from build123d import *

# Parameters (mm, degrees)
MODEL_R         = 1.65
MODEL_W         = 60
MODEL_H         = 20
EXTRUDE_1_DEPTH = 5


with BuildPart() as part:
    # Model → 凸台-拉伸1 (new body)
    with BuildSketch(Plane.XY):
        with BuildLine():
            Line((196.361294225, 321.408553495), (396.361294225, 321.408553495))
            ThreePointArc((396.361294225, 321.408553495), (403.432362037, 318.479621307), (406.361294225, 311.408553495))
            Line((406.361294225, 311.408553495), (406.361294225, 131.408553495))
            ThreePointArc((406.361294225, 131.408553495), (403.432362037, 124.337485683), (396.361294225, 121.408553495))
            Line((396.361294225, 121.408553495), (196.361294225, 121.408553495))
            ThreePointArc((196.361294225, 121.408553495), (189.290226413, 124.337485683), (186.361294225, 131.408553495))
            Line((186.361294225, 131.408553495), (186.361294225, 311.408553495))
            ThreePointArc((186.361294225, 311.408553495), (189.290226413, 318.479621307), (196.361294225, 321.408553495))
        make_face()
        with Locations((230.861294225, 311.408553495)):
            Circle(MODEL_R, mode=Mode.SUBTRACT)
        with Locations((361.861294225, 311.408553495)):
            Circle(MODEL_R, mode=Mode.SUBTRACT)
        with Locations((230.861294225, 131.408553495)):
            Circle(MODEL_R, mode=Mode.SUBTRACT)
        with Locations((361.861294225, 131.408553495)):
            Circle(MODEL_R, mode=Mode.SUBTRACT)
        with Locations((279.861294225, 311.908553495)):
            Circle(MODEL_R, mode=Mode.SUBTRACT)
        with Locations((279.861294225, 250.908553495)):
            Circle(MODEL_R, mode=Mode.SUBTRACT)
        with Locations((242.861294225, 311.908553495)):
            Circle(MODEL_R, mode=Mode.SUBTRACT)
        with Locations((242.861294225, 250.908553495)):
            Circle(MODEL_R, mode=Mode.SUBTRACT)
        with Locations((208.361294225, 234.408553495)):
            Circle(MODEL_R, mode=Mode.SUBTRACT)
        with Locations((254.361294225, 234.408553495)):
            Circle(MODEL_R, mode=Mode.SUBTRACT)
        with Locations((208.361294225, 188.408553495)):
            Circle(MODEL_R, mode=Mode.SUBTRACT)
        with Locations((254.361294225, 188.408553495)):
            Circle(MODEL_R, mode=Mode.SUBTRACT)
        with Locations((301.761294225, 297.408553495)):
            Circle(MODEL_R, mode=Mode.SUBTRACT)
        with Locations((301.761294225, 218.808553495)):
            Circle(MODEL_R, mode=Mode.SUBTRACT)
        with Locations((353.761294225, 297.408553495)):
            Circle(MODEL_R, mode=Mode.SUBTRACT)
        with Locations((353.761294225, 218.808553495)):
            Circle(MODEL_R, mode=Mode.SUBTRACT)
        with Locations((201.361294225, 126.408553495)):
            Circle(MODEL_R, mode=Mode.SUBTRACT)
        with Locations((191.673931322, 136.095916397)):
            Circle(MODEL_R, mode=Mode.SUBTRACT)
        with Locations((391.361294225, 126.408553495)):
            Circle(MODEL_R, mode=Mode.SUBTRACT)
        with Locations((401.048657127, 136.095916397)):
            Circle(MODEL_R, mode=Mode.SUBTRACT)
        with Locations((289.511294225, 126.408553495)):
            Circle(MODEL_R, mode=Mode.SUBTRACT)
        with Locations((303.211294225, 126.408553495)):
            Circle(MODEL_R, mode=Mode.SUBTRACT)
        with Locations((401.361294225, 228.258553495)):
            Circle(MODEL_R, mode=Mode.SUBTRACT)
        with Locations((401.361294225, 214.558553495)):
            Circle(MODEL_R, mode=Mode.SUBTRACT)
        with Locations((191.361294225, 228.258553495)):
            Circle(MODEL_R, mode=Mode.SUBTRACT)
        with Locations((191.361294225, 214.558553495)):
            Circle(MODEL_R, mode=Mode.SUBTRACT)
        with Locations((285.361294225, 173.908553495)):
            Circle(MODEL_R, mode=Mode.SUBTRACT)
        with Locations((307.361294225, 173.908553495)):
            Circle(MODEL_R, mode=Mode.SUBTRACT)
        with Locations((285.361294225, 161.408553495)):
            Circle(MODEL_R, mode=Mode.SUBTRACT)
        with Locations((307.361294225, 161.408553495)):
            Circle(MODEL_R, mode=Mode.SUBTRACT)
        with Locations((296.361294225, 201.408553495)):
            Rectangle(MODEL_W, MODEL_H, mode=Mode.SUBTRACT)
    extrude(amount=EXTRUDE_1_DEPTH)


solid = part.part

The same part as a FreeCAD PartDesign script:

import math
import FreeCAD as App
import Part
import Sketcher


def add_polygon(sketch, points):
    """Adds a closed chain of lines whose ends are joined by coincident constraints."""
    first, n = sketch.GeometryCount, len(points)
    for a, b in zip(points, points[1:] + points[:1]):
        sketch.addGeometry(Part.LineSegment(App.Vector(*a, 0), App.Vector(*b, 0)), False)
    for i in range(n):
        sketch.addConstraint(Sketcher.Constraint("Coincident", first + i, 2, first + (i + 1) % n, 1))

doc = App.newDocument("Part")
body = doc.addObject("PartDesign::Body", "Body")

# Sketch on XY plane
sketch1 = body.newObject("Sketcher::SketchObject", "Sketch")
sketch1.AttachmentSupport = (doc.getObject("XY_Plane"), [""])
sketch1.MapMode = "FlatFace"
sketch1.addGeometry(Part.LineSegment(App.Vector(396.4, 321.4, 0), App.Vector(196.4, 321.4, 0)), False)  # 0
sketch1.addGeometry(Part.ArcOfCircle(Part.Circle(App.Vector(196.4, 311.4, 0), App.Vector(0, 0, 1), 10), math.radians(90), math.radians(180)), False)  # 1
sketch1.addGeometry(Part.LineSegment(App.Vector(186.4, 311.4, 0), App.Vector(186.4, 131.4, 0)), False)  # 2
sketch1.addGeometry(Part.ArcOfCircle(Part.Circle(App.Vector(196.4, 131.4, 0), App.Vector(0, 0, 1), 10), math.radians(180), math.radians(270)), False)  # 3
sketch1.addGeometry(Part.LineSegment(App.Vector(196.4, 121.4, 0), App.Vector(396.4, 121.4, 0)), False)  # 4
sketch1.addGeometry(Part.ArcOfCircle(Part.Circle(App.Vector(396.4, 131.4, 0), App.Vector(0, 0, 1), 10), math.radians(-90), math.radians(0)), False)  # 5
sketch1.addGeometry(Part.LineSegment(App.Vector(406.4, 131.4, 0), App.Vector(406.4, 311.4, 0)), False)  # 6
sketch1.addGeometry(Part.ArcOfCircle(Part.Circle(App.Vector(396.4, 311.4, 0), App.Vector(0, 0, 1), 10), math.radians(0), math.radians(90)), False)  # 7
sketch1.addGeometry(Part.Circle(App.Vector(391.4, 126.4, 0), App.Vector(0, 0, 1), 1.6), False)  # 8
sketch1.addGeometry(Part.Circle(App.Vector(401, 136.1, 0), App.Vector(0, 0, 1), 1.6), False)  # 9
sketch1.addGeometry(Part.Circle(App.Vector(361.9, 131.4, 0), App.Vector(0, 0, 1), 1.6), False)  # 10
sketch1.addGeometry(Part.Circle(App.Vector(303.2, 126.4, 0), App.Vector(0, 0, 1), 1.6), False)  # 11
sketch1.addGeometry(Part.Circle(App.Vector(307.4, 161.4, 0), App.Vector(0, 0, 1), 1.6), False)  # 12
sketch1.addGeometry(Part.Circle(App.Vector(401.4, 214.6, 0), App.Vector(0, 0, 1), 1.6), False)  # 13
sketch1.addGeometry(Part.Circle(App.Vector(353.8, 218.8, 0), App.Vector(0, 0, 1), 1.6), False)  # 14
sketch1.addGeometry(Part.Circle(App.Vector(307.4, 173.9, 0), App.Vector(0, 0, 1), 1.6), False)  # 15
add_polygon(sketch1, [(266.4, 191.4), (266.4, 211.4), (326.4, 211.4), (326.4, 191.4)])  # lines 16-19
sketch1.addGeometry(Part.Circle(App.Vector(301.8, 218.8, 0), App.Vector(0, 0, 1), 1.6), False)  # 20
sketch1.addGeometry(Part.Circle(App.Vector(289.5, 126.4, 0), App.Vector(0, 0, 1), 1.6), False)  # 21
sketch1.addGeometry(Part.Circle(App.Vector(285.4, 161.4, 0), App.Vector(0, 0, 1), 1.6), False)  # 22
sketch1.addGeometry(Part.Circle(App.Vector(230.9, 131.4, 0), App.Vector(0, 0, 1), 1.6), False)  # 23
sketch1.addGeometry(Part.Circle(App.Vector(201.4, 126.4, 0), App.Vector(0, 0, 1), 1.6), False)  # 24
sketch1.addGeometry(Part.Circle(App.Vector(191.7, 136.1, 0), App.Vector(0, 0, 1), 1.6), False)  # 25
sketch1.addGeometry(Part.Circle(App.Vector(285.4, 173.9, 0), App.Vector(0, 0, 1), 1.6), False)  # 26
sketch1.addGeometry(Part.Circle(App.Vector(254.4, 188.4, 0), App.Vector(0, 0, 1), 1.6), False)  # 27
sketch1.addGeometry(Part.Circle(App.Vector(208.4, 188.4, 0), App.Vector(0, 0, 1), 1.6), False)  # 28
sketch1.addGeometry(Part.Circle(App.Vector(191.4, 214.6, 0), App.Vector(0, 0, 1), 1.6), False)  # 29
sketch1.addGeometry(Part.Circle(App.Vector(401.4, 228.3, 0), App.Vector(0, 0, 1), 1.6), False)  # 30
sketch1.addGeometry(Part.Circle(App.Vector(353.8, 297.4, 0), App.Vector(0, 0, 1), 1.6), False)  # 31
sketch1.addGeometry(Part.Circle(App.Vector(361.9, 311.4, 0), App.Vector(0, 0, 1), 1.6), False)  # 32
sketch1.addGeometry(Part.Circle(App.Vector(301.8, 297.4, 0), App.Vector(0, 0, 1), 1.6), False)  # 33
sketch1.addGeometry(Part.Circle(App.Vector(254.4, 234.4, 0), App.Vector(0, 0, 1), 1.6), False)  # 34
sketch1.addGeometry(Part.Circle(App.Vector(279.9, 250.9, 0), App.Vector(0, 0, 1), 1.6), False)  # 35
sketch1.addGeometry(Part.Circle(App.Vector(191.4, 228.3, 0), App.Vector(0, 0, 1), 1.6), False)  # 36
sketch1.addGeometry(Part.Circle(App.Vector(208.4, 234.4, 0), App.Vector(0, 0, 1), 1.6), False)  # 37
sketch1.addGeometry(Part.Circle(App.Vector(242.9, 250.9, 0), App.Vector(0, 0, 1), 1.6), False)  # 38
sketch1.addGeometry(Part.Circle(App.Vector(279.9, 311.9, 0), App.Vector(0, 0, 1), 1.6), False)  # 39
sketch1.addGeometry(Part.Circle(App.Vector(242.9, 311.9, 0), App.Vector(0, 0, 1), 1.6), False)  # 40
sketch1.addGeometry(Part.Circle(App.Vector(230.9, 311.4, 0), App.Vector(0, 0, 1), 1.6), False)  # 41
sketch1.addConstraint([
    Sketcher.Constraint("Tangent", 0, 2, 1, 1),
    Sketcher.Constraint("Tangent", 1, 2, 2, 1),
    Sketcher.Constraint("Tangent", 2, 2, 3, 1),
    Sketcher.Constraint("Tangent", 3, 2, 4, 1),
    Sketcher.Constraint("Tangent", 4, 2, 5, 1),
    Sketcher.Constraint("Tangent", 5, 2, 6, 1),
    Sketcher.Constraint("Tangent", 6, 2, 7, 1),
    Sketcher.Constraint("Tangent", 7, 2, 0, 1),
    Sketcher.Constraint("Horizontal", 0),
    Sketcher.Constraint("Vertical", 2),
    Sketcher.Constraint("Horizontal", 4),
    Sketcher.Constraint("Vertical", 6),
    Sketcher.Constraint("Vertical", 16),
    Sketcher.Constraint("Horizontal", 17),
    Sketcher.Constraint("Vertical", 18),
    Sketcher.Constraint("Horizontal", 19),
    Sketcher.Constraint("Equal", 1, 3),
    Sketcher.Constraint("Equal", 3, 5),
    Sketcher.Constraint("Equal", 5, 7),
    Sketcher.Constraint("Equal", 8, 9),
    Sketcher.Constraint("Equal", 9, 10),
    Sketcher.Constraint("Equal", 10, 11),
    Sketcher.Constraint("Equal", 11, 12),
    Sketcher.Constraint("Equal", 12, 13),
    Sketcher.Constraint("Equal", 13, 14),
    Sketcher.Constraint("Equal", 14, 15),
    Sketcher.Constraint("Equal", 15, 20),
    Sketcher.Constraint("Equal", 20, 21),
    Sketcher.Constraint("Equal", 21, 22),
    Sketcher.Constraint("Equal", 22, 23),
    Sketcher.Constraint("Equal", 23, 24),
    Sketcher.Constraint("Equal", 24, 25),
    Sketcher.Constraint("Equal", 25, 26),
    Sketcher.Constraint("Equal", 26, 27),
    Sketcher.Constraint("Equal", 27, 28),
    Sketcher.Constraint("Equal", 28, 29),
    Sketcher.Constraint("Equal", 29, 30),
    Sketcher.Constraint("Equal", 30, 31),
    Sketcher.Constraint("Equal", 31, 32),
    Sketcher.Constraint("Equal", 32, 33),
    Sketcher.Constraint("Equal", 33, 34),
    Sketcher.Constraint("Equal", 34, 35),
    Sketcher.Constraint("Equal", 35, 36),
    Sketcher.Constraint("Equal", 36, 37),
    Sketcher.Constraint("Equal", 37, 38),
    Sketcher.Constraint("Equal", 38, 39),
    Sketcher.Constraint("Equal", 39, 40),
    Sketcher.Constraint("Equal", 40, 41),
    Sketcher.Constraint("Horizontal", 5, 3, 10, 3),
    Sketcher.Constraint("Horizontal", 8, 3, 11, 3),
    Sketcher.Constraint("Horizontal", 14, 3, 20, 3),
    Sketcher.Constraint("Horizontal", 11, 3, 21, 3),
    Sketcher.Constraint("Horizontal", 12, 3, 22, 3),
    Sketcher.Constraint("Horizontal", 10, 3, 23, 3),
    Sketcher.Constraint("Horizontal", 21, 3, 24, 3),
    Sketcher.Constraint("Horizontal", 9, 3, 25, 3),
    Sketcher.Constraint("Horizontal", 15, 3, 26, 3),
    Sketcher.Constraint("Horizontal", 27, 3, 28, 3),
    Sketcher.Constraint("Horizontal", 13, 3, 29, 3),
    Sketcher.Constraint("Horizontal", 7, 3, 32, 3),
    Sketcher.Constraint("Horizontal", 31, 3, 33, 3),
    Sketcher.Constraint("Horizontal", 30, 3, 36, 3),
    Sketcher.Constraint("Horizontal", 34, 3, 37, 3),
    Sketcher.Constraint("Horizontal", 35, 3, 38, 3),
    Sketcher.Constraint("Horizontal", 39, 3, 40, 3),
    Sketcher.Constraint("Horizontal", 32, 3, 41, 3),
    Sketcher.Constraint("Vertical", 12, 3, 15, 3),
    Sketcher.Constraint("Vertical", 22, 3, 26, 3),
    Sketcher.Constraint("Vertical", 13, 3, 30, 3),
    Sketcher.Constraint("Vertical", 14, 3, 31, 3),
    Sketcher.Constraint("Vertical", 10, 3, 32, 3),
    Sketcher.Constraint("Vertical", 20, 3, 33, 3),
    Sketcher.Constraint("Vertical", 27, 3, 34, 3),
    Sketcher.Constraint("Vertical", 29, 3, 36, 3),
    Sketcher.Constraint("Vertical", 28, 3, 37, 3),
    Sketcher.Constraint("Vertical", 35, 3, 39, 3),
    Sketcher.Constraint("Vertical", 38, 3, 40, 3),
    Sketcher.Constraint("Vertical", 23, 3, 41, 3),
    Sketcher.Constraint("Radius", 1, 10.0),
    Sketcher.Constraint("Diameter", 8, 3.3),
    Sketcher.Constraint("DistanceX", 0, 2, 0, 1, 200.0),
    Sketcher.Constraint("DistanceX", 17, 1, 17, 2, 60.0),
    Sketcher.Constraint("DistanceY", 2, 2, 2, 1, 180.0),
    Sketcher.Constraint("DistanceY", 16, 1, 16, 2, 20.0),
    Sketcher.Constraint("DistanceX", 8, 3, 5, 3, 5.0),
    Sketcher.Constraint("DistanceY", 8, 3, 5, 3, 5.0),
    Sketcher.Constraint("DistanceY", 11, 3, 12, 3, 35.0),
    Sketcher.Constraint("DistanceX", 12, 3, 8, 3, 84.0),
    Sketcher.Constraint("DistanceX", 5, 3, 13, 3, 5.0),
    Sketcher.Constraint("DistanceX", 20, 3, 14, 3, 52.0),
    Sketcher.Constraint("DistanceX", 22, 3, 12, 3, 22.0),
    Sketcher.Constraint("DistanceX", 3, 3, 24, 3, 5.0),
    Sketcher.Constraint("DistanceX", 27, 3, 26, 3, 31.0),
    Sketcher.Constraint("DistanceY", 22, 3, 27, 3, 27.0),
    Sketcher.Constraint("DistanceX", 28, 3, 27, 3, 46.0),
    Sketcher.Constraint("DistanceX", 29, 3, 28, 3, 17.0),
    Sketcher.Constraint("DistanceY", 31, 3, 7, 3, 14.0),
    Sketcher.Constraint("DistanceY", 27, 3, 34, 3, 46.0),
    Sketcher.Constraint("DistanceY", 26, 3, 35, 3, 77.0),
    Sketcher.Constraint("DistanceX", 38, 3, 35, 3, 37.0),
    Sketcher.Constraint("DistanceY", 35, 3, 39, 3, 61.0),
    Sketcher.Constraint("DistanceX", 41, 3, 40, 3, 12.0),
    Sketcher.Constraint("DistanceX", 27, 3, 16, 2, 12.0),
    Sketcher.Constraint("DistanceY", 27, 3, 16, 2, 23.0),
    Sketcher.Constraint("DistanceX", 10, 3, 8, 3, 29.5),
    Sketcher.Constraint("DistanceX", 14, 3, 13, 3, 47.6),
    Sketcher.Constraint("DistanceY", 12, 3, 14, 3, 57.4),
    Sketcher.Constraint("DistanceY", 12, 3, 15, 3, 12.5),
    Sketcher.Constraint("DistanceX", 21, 3, 11, 3, 13.7),
    Sketcher.Constraint("DistanceX", 3, 3, 23, 3, 34.5),
    Sketcher.Constraint("DistanceY", 13, 3, 30, 3, 13.7),
    Sketcher.Constraint("DistanceX", 11, 3, 10, 3, 58.65),
    Sketcher.Constraint("DistanceY", 5, 3, 13, 3, 83.15),
    Sketcher.Constraint("DistanceX", -1, 1, 25, 3, 191.673931),
    Sketcher.Constraint("DistanceX", -1, 1, 1, 3, 196.361294),
    Sketcher.Constraint("DistanceY", -1, 1, 1, 3, 311.408553),
    Sketcher.Constraint("DistanceX", -1, 1, 9, 3, 401.048657),
    Sketcher.Constraint("DistanceY", -1, 1, 9, 3, 136.095916),
])
pad1 = body.newObject("PartDesign::Pad", "Pad")
pad1.Profile = sketch1
pad1.Length = 5

doc.recompute()
